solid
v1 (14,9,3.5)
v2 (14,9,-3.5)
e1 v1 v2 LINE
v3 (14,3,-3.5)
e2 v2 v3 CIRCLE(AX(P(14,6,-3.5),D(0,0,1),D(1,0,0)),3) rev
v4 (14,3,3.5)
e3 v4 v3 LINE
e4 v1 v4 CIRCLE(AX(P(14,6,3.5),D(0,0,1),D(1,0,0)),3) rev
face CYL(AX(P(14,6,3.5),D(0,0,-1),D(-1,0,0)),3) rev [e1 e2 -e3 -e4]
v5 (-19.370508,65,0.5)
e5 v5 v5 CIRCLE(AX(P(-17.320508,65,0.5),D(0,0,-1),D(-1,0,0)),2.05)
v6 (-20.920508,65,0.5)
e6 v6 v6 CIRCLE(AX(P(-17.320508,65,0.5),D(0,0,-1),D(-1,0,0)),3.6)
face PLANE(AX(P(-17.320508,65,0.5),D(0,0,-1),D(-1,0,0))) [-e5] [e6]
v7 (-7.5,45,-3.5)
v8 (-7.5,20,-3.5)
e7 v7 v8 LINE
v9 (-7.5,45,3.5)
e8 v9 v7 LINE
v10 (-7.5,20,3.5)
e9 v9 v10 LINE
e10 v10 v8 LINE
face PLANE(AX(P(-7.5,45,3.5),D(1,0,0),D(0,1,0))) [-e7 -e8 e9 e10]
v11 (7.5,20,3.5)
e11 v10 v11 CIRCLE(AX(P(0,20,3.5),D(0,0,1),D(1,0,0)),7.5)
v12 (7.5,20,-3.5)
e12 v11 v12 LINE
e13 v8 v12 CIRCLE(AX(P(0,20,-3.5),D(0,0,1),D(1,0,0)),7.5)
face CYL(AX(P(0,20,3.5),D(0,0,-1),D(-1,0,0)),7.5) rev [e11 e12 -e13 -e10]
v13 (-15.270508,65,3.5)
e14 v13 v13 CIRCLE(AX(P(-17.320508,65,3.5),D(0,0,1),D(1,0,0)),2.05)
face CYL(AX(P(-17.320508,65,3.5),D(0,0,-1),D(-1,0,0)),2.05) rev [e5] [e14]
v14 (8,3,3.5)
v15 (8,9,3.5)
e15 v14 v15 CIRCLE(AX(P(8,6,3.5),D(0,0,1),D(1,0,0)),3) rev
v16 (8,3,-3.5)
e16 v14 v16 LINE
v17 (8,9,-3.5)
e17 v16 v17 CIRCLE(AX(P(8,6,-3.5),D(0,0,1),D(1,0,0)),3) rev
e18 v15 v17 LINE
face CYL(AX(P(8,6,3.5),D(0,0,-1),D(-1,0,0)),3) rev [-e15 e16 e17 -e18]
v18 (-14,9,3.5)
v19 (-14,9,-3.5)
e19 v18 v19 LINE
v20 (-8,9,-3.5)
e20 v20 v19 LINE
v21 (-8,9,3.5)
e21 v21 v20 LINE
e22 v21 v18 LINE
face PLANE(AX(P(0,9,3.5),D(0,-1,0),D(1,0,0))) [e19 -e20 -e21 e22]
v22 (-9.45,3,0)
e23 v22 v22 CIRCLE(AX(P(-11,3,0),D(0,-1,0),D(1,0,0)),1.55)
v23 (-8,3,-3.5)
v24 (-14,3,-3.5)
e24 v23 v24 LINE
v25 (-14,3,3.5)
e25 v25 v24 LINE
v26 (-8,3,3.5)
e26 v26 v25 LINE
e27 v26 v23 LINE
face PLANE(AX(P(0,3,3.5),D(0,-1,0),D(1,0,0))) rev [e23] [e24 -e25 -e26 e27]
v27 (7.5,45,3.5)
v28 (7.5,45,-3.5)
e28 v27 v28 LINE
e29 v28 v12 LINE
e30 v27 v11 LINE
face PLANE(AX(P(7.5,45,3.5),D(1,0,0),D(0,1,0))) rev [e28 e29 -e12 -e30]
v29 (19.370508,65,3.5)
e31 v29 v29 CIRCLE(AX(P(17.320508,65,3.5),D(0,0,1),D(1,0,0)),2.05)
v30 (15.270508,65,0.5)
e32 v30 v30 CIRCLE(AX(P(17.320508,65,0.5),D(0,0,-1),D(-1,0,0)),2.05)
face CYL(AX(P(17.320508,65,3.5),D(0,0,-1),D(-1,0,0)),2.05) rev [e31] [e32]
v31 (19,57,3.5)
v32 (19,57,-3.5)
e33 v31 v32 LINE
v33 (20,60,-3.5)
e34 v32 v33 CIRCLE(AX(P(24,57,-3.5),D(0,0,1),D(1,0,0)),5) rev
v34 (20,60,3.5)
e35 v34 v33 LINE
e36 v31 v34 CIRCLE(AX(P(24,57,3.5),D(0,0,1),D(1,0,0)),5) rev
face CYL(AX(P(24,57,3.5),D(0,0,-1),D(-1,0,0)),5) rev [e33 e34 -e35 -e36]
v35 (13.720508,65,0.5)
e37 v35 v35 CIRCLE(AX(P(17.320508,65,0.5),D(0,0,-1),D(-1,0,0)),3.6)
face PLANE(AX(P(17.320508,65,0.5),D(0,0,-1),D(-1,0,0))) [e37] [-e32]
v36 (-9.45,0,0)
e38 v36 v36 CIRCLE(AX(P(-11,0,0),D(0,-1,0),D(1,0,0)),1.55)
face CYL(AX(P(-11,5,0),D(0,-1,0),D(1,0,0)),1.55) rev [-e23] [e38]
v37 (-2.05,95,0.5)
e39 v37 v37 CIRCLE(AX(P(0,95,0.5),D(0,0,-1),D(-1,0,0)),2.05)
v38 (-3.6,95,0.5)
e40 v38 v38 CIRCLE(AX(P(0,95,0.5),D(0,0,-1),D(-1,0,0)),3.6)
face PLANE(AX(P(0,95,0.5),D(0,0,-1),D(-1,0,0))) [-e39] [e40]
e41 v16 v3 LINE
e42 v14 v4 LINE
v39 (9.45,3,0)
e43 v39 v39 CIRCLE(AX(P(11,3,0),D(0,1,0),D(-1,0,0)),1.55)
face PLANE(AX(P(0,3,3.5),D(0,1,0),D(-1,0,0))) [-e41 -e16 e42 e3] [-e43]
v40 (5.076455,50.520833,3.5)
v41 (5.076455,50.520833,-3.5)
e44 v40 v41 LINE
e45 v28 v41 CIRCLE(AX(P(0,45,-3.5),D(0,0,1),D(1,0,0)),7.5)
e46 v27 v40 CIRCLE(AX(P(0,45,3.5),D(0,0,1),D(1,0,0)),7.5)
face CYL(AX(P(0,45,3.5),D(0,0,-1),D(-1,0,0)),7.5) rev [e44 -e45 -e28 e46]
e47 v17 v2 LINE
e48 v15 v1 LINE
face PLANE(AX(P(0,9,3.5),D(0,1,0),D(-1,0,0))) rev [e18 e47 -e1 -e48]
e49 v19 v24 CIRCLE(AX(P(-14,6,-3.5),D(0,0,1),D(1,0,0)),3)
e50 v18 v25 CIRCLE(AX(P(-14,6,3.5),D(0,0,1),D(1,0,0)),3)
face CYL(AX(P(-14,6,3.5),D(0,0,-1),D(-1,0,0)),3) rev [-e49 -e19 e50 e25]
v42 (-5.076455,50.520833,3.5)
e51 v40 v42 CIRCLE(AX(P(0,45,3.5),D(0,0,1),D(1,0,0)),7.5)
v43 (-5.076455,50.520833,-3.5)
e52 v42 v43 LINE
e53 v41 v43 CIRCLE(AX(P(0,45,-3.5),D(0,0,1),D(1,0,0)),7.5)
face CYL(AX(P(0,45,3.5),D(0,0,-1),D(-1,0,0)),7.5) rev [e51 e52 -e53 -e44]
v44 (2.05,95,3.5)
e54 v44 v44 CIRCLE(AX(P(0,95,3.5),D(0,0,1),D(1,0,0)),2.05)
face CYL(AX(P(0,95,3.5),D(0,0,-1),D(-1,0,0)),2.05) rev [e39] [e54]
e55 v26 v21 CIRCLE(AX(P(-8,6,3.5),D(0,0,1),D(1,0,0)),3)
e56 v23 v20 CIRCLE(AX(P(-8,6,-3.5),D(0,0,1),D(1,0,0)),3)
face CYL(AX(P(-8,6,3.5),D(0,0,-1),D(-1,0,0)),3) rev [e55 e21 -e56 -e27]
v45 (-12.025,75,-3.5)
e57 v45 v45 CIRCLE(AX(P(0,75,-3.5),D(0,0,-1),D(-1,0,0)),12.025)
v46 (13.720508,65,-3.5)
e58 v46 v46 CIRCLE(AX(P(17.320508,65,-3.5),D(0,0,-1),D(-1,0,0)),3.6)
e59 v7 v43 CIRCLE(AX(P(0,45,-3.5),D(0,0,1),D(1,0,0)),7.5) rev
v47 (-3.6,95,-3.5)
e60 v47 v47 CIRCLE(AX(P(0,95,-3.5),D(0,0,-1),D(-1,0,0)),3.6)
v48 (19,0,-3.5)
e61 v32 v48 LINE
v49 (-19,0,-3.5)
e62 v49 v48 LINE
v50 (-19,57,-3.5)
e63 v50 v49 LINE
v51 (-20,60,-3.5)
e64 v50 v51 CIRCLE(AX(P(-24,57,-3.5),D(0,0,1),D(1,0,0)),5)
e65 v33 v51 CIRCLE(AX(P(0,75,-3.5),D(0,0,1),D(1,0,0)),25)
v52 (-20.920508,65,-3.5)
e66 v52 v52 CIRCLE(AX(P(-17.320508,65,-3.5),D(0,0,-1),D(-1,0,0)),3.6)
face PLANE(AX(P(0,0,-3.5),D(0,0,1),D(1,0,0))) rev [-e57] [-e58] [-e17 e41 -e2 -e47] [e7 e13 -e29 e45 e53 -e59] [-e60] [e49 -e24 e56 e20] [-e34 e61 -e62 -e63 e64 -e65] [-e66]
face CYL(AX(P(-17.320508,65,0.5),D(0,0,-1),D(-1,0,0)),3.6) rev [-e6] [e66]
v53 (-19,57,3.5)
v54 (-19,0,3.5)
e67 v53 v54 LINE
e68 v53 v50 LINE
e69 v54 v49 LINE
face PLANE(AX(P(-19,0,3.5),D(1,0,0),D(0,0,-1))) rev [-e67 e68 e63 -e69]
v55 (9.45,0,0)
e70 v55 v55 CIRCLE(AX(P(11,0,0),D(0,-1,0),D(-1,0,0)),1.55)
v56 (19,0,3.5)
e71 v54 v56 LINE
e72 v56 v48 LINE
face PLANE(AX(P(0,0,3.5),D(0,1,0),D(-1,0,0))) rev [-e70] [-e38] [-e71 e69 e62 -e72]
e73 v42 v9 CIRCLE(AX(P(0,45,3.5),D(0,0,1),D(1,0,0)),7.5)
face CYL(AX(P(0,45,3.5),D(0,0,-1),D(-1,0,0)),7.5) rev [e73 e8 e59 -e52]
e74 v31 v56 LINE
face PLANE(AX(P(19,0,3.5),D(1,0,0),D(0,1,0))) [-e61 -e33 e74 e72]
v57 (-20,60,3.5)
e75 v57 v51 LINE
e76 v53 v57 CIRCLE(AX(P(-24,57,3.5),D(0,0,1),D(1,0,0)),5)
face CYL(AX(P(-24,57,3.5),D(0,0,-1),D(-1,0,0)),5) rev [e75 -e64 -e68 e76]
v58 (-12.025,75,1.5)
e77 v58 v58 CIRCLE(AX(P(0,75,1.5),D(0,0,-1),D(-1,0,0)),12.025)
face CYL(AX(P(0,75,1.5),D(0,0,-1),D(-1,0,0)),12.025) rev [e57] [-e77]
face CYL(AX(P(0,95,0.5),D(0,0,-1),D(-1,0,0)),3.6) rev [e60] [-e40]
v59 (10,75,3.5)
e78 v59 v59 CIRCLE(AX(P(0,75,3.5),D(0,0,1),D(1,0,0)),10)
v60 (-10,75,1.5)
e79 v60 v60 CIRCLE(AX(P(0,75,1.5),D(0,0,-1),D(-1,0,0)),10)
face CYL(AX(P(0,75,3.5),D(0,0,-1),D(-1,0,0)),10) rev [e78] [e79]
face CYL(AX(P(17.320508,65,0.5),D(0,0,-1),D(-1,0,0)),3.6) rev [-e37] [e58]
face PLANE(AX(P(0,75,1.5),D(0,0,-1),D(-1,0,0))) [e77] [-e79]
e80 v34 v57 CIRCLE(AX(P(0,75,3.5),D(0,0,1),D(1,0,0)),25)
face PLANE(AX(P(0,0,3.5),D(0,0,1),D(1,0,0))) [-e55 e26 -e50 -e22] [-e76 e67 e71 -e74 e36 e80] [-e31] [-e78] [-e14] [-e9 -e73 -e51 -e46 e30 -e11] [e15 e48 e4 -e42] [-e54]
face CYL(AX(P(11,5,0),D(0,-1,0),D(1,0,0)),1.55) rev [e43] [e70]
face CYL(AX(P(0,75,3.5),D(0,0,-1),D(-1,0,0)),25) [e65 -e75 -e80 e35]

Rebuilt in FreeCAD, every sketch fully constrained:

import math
import FreeCAD as App
import Part
import Sketcher
from FreeCAD import Vector
Q = App.Units.Quantity

doc = App.newDocument("Part")
body = doc.addObject("PartDesign::Body", "Body")

# Sketch on XY plane
sketch1 = body.newObject("Sketcher::SketchObject", "Sketch")
sketch1.AttachmentSupport = (doc.getObject("XY_Plane"), [""])
sketch1.MapMode = "FlatFace"
sketch1.addGeometry([
    Part.LineSegment(Vector(-19, 0, 0), Vector(19, 0, 0)),  # 0
    Part.LineSegment(Vector(19, 0, 0), Vector(19, 57, 0)),  # 1
    Part.ArcOfCircle(Part.Circle(Vector(24, 57, 0), Vector(0, 0, 1), 5), math.radians(143), math.radians(180)),  # 2
    Part.ArcOfCircle(Part.Circle(Vector(0, 75, 0), Vector(0, 0, 1), 25), math.radians(-37), math.radians(217)),  # 3
    Part.ArcOfCircle(Part.Circle(Vector(-24, 57, 0), Vector(0, 0, 1), 5), math.radians(0), math.radians(37)),  # 4
    Part.LineSegment(Vector(-19, 57, 0), Vector(-19, 0, 0)),  # 5
    Part.LineSegment(Vector(-14, 9, 0), Vector(-8, 9, 0)),  # 6
    Part.ArcOfCircle(Part.Circle(Vector(-8, 6, 0), Vector(0, 0, 1), 3), math.radians(-90), math.radians(90)),  # 7
    Part.LineSegment(Vector(-8, 3, 0), Vector(-14, 3, 0)),  # 8
    Part.ArcOfCircle(Part.Circle(Vector(-14, 6, 0), Vector(0, 0, 1), 3), math.radians(90), math.radians(270)),  # 9
    Part.ArcOfCircle(Part.Circle(Vector(0, 45, 0), Vector(0, 0, 1), 7.5), math.radians(0), math.radians(90)),  # 10
    Part.LineSegment(Vector(7.5, 45, 0), Vector(7.5, 20, 0)),  # 11
    Part.ArcOfCircle(Part.Circle(Vector(0, 20, 0), Vector(0, 0, 1), 7.5), math.radians(180), math.radians(360)),  # 12
    Part.LineSegment(Vector(-7.5, 20, 0), Vector(-7.5, 45, 0)),  # 13
    Part.ArcOfCircle(Part.Circle(Vector(0, 45, 0), Vector(0, 0, 1), 7.5), math.radians(90), math.radians(180)),  # 14
    Part.LineSegment(Vector(14, 3, 0), Vector(8, 3, 0)),  # 15
    Part.ArcOfCircle(Part.Circle(Vector(8, 6, 0), Vector(0, 0, 1), 3), math.radians(90), math.radians(270)),  # 16
    Part.LineSegment(Vector(8, 9, 0), Vector(14, 9, 0)),  # 17
    Part.ArcOfCircle(Part.Circle(Vector(14, 6, 0), Vector(0, 0, 1), 3), math.radians(-90), math.radians(90)),  # 18
    Part.Circle(Vector(-17.3, 65, 0), Vector(0, 0, 1), 2),  # 19
    Part.Circle(Vector(0, 75, 0), Vector(0, 0, 1), 10),  # 20
    Part.Circle(Vector(0, 95, 0), Vector(0, 0, 1), 2),  # 21
    Part.Circle(Vector(17.3, 65, 0), Vector(0, 0, 1), 2),  # 22
], False)
sketch1.addConstraint([
    Sketcher.Constraint("Coincident", 0, 2, 1, 1),
    Sketcher.Constraint("Tangent", 1, 2, 2, 2),
    Sketcher.Constraint("Tangent", 2, 1, 3, 1),
    Sketcher.Constraint("Tangent", 3, 2, 4, 2),
    Sketcher.Constraint("Tangent", 4, 1, 5, 1),
    Sketcher.Constraint("Coincident", 5, 2, 0, 1),
    Sketcher.Constraint("Tangent", 6, 2, 7, 2),
    Sketcher.Constraint("Tangent", 7, 1, 8, 1),
    Sketcher.Constraint("Tangent", 8, 2, 9, 2),
    Sketcher.Constraint("Tangent", 9, 1, 6, 1),
    Sketcher.Constraint("Tangent", 10, 1, 11, 1),
    Sketcher.Constraint("Tangent", 11, 2, 12, 2),
    Sketcher.Constraint("Tangent", 12, 1, 13, 1),
    Sketcher.Constraint("Tangent", 13, 2, 14, 2),
    Sketcher.Constraint("Tangent", 14, 1, 10, 2),
    Sketcher.Constraint("Tangent", 15, 2, 16, 2),
    Sketcher.Constraint("Tangent", 16, 1, 17, 1),
    Sketcher.Constraint("Tangent", 17, 2, 18, 2),
    Sketcher.Constraint("Tangent", 18, 1, 15, 1),
    Sketcher.Constraint("Horizontal", 0),
    Sketcher.Constraint("Vertical", 1),
    Sketcher.Constraint("Vertical", 5),
    Sketcher.Constraint("Horizontal", 6),
    Sketcher.Constraint("Horizontal", 8),
    Sketcher.Constraint("Vertical", 11),
    Sketcher.Constraint("Vertical", 13),
    Sketcher.Constraint("Horizontal", 15),
    Sketcher.Constraint("Horizontal", 17),
    Sketcher.Constraint("Coincident", 20, 3, 3, 3),
    Sketcher.Constraint("Equal", 2, 4),
    Sketcher.Constraint("Equal", 10, 12),
    Sketcher.Constraint("Equal", 9, 16),
    Sketcher.Constraint("Equal", 19, 21),
    Sketcher.Constraint("Equal", 21, 22),
    Sketcher.Constraint("Symmetric", 0, 2, 5, 2, -1, 1),
    Sketcher.Constraint("Symmetric", 7, 3, 16, 3, -2),
    Sketcher.Constraint("Symmetric", 19, 3, 22, 3, -2),
    Sketcher.Constraint("PointOnObject", 3, 3, -2),
    Sketcher.Constraint("PointOnObject", 10, 3, -2),
    Sketcher.Constraint("PointOnObject", 21, 3, -2),
    Sketcher.Constraint("PointOnObject", 14, 1, -2),
    Sketcher.Constraint("Equal", 8, 15),
    Sketcher.Constraint("Diameter", 20, Q("20 mm")),
    Sketcher.Constraint("Radius", 2, Q("5 mm")),
    Sketcher.Constraint("Radius", 3, Q("25 mm")),
    Sketcher.Constraint("Radius", 7, Q("3 mm")),
    Sketcher.Constraint("Diameter", 19, Q("4.1 mm")),
    Sketcher.Constraint("Radius", 10, Q("7.5 mm")),
    Sketcher.Constraint("DistanceX", 0, 1, 0, 2, Q("38 mm")),
    Sketcher.Constraint("DistanceX", 6, 1, 6, 2, Q("6 mm")),
    Sketcher.Constraint("DistanceY", 1, 1, 1, 2, Q("57 mm")),
    Sketcher.Constraint("DistanceY", 11, 2, 11, 1, Q("25 mm")),
    Sketcher.Constraint("DistanceX", 7, 3, -1, 1, Q("8 mm")),
    Sketcher.Constraint("DistanceY", -1, 1, 7, 3, Q("6 mm")),
    Sketcher.Constraint("DistanceY", -1, 1, 10, 3, Q("45 mm")),
    Sketcher.Constraint("DistanceY", -1, 1, 19, 3, Q("65 mm")),
    Sketcher.Constraint("DistanceY", -1, 1, 21, 3, Q("95 mm")),
    Sketcher.Constraint("DistanceX", 19, 3, -1, 1, Q("17.320508 mm")),
])
pad1 = body.newObject("PartDesign::Pad", "Pad")
pad1.Profile = sketch1
pad1.Length = 7
pad1.Midplane = True

# Sketch on XY plane
sketch2 = body.newObject("Sketcher::SketchObject", "Sketch001")
sketch2.AttachmentSupport = (doc.getObject("XY_Plane"), [""])
sketch2.MapMode = "FlatFace"
sketch2.AttachmentOffset = App.Placement(Vector(0, 0, -3.5), App.Rotation())
sketch2.addGeometry(Part.Circle(Vector(0, 75, 0), Vector(0, 0, 1), 12), False)
sketch2.addConstraint([
    Sketcher.Constraint("PointOnObject", 0, 3, -2),
    Sketcher.Constraint("Diameter", 0, Q("24.05 mm")),
    Sketcher.Constraint("DistanceY", -1, 1, 0, 3, Q("75 mm")),
])
pocket1 = body.newObject("PartDesign::Pocket", "Pocket")
pocket1.Profile = sketch2
pocket1.Length = 5
pocket1.Reversed = True

# Sketch on XY plane
sketch3 = body.newObject("Sketcher::SketchObject", "Sketch002")
sketch3.AttachmentSupport = (doc.getObject("XY_Plane"), [""])
sketch3.MapMode = "FlatFace"
sketch3.AttachmentOffset = App.Placement(Vector(0, 0, -3.5), App.Rotation())
sketch3.addGeometry([
    Part.Circle(Vector(0, 95, 0), Vector(0, 0, 1), 3.6),
    Part.Circle(Vector(-17.3, 65, 0), Vector(0, 0, 1), 3.6),
    Part.Circle(Vector(17.3, 65, 0), Vector(0, 0, 1), 3.6),
], False)
sketch3.addConstraint([
    Sketcher.Constraint("Equal", 0, 1),
    Sketcher.Constraint("Equal", 1, 2),
    Sketcher.Constraint("Symmetric", 1, 3, 2, 3, -2),
    Sketcher.Constraint("PointOnObject", 0, 3, -2),
    Sketcher.Constraint("Diameter", 0, Q("7.2 mm")),
    Sketcher.Constraint("DistanceY", -1, 1, 0, 3, Q("95 mm")),
    Sketcher.Constraint("DistanceY", -1, 1, 1, 3, Q("65 mm")),
    Sketcher.Constraint("DistanceX", 1, 3, -1, 1, Q("17.320508 mm")),
])
pocket2 = body.newObject("PartDesign::Pocket", "Pocket001")
pocket2.Profile = sketch3
pocket2.Length = 4
pocket2.Reversed = True

# Sketch on XZ plane
sketch4 = body.newObject("Sketcher::SketchObject", "Sketch003")
sketch4.AttachmentSupport = (doc.getObject("XZ_Plane"), [""])
sketch4.MapMode = "FlatFace"
sketch4.addGeometry([
    Part.Circle(Vector(-11, 0, 0), Vector(0, 0, 1), 1.6),
    Part.Circle(Vector(11, 0, 0), Vector(0, 0, 1), 1.6),
], False)
sketch4.addConstraint([
    Sketcher.Constraint("Equal", 0, 1),
    Sketcher.Constraint("Symmetric", 0, 3, 1, 3, -1, 1),
    Sketcher.Constraint("PointOnObject", 0, 3, -1),
    Sketcher.Constraint("Diameter", 0, Q("3.1 mm")),
    Sketcher.Constraint("DistanceX", 0, 3, -1, 1, Q("11 mm")),
])
pocket3 = body.newObject("PartDesign::Pocket", "Pocket002")
pocket3.Profile = sketch4
pocket3.Length = 5

doc.recompute()
